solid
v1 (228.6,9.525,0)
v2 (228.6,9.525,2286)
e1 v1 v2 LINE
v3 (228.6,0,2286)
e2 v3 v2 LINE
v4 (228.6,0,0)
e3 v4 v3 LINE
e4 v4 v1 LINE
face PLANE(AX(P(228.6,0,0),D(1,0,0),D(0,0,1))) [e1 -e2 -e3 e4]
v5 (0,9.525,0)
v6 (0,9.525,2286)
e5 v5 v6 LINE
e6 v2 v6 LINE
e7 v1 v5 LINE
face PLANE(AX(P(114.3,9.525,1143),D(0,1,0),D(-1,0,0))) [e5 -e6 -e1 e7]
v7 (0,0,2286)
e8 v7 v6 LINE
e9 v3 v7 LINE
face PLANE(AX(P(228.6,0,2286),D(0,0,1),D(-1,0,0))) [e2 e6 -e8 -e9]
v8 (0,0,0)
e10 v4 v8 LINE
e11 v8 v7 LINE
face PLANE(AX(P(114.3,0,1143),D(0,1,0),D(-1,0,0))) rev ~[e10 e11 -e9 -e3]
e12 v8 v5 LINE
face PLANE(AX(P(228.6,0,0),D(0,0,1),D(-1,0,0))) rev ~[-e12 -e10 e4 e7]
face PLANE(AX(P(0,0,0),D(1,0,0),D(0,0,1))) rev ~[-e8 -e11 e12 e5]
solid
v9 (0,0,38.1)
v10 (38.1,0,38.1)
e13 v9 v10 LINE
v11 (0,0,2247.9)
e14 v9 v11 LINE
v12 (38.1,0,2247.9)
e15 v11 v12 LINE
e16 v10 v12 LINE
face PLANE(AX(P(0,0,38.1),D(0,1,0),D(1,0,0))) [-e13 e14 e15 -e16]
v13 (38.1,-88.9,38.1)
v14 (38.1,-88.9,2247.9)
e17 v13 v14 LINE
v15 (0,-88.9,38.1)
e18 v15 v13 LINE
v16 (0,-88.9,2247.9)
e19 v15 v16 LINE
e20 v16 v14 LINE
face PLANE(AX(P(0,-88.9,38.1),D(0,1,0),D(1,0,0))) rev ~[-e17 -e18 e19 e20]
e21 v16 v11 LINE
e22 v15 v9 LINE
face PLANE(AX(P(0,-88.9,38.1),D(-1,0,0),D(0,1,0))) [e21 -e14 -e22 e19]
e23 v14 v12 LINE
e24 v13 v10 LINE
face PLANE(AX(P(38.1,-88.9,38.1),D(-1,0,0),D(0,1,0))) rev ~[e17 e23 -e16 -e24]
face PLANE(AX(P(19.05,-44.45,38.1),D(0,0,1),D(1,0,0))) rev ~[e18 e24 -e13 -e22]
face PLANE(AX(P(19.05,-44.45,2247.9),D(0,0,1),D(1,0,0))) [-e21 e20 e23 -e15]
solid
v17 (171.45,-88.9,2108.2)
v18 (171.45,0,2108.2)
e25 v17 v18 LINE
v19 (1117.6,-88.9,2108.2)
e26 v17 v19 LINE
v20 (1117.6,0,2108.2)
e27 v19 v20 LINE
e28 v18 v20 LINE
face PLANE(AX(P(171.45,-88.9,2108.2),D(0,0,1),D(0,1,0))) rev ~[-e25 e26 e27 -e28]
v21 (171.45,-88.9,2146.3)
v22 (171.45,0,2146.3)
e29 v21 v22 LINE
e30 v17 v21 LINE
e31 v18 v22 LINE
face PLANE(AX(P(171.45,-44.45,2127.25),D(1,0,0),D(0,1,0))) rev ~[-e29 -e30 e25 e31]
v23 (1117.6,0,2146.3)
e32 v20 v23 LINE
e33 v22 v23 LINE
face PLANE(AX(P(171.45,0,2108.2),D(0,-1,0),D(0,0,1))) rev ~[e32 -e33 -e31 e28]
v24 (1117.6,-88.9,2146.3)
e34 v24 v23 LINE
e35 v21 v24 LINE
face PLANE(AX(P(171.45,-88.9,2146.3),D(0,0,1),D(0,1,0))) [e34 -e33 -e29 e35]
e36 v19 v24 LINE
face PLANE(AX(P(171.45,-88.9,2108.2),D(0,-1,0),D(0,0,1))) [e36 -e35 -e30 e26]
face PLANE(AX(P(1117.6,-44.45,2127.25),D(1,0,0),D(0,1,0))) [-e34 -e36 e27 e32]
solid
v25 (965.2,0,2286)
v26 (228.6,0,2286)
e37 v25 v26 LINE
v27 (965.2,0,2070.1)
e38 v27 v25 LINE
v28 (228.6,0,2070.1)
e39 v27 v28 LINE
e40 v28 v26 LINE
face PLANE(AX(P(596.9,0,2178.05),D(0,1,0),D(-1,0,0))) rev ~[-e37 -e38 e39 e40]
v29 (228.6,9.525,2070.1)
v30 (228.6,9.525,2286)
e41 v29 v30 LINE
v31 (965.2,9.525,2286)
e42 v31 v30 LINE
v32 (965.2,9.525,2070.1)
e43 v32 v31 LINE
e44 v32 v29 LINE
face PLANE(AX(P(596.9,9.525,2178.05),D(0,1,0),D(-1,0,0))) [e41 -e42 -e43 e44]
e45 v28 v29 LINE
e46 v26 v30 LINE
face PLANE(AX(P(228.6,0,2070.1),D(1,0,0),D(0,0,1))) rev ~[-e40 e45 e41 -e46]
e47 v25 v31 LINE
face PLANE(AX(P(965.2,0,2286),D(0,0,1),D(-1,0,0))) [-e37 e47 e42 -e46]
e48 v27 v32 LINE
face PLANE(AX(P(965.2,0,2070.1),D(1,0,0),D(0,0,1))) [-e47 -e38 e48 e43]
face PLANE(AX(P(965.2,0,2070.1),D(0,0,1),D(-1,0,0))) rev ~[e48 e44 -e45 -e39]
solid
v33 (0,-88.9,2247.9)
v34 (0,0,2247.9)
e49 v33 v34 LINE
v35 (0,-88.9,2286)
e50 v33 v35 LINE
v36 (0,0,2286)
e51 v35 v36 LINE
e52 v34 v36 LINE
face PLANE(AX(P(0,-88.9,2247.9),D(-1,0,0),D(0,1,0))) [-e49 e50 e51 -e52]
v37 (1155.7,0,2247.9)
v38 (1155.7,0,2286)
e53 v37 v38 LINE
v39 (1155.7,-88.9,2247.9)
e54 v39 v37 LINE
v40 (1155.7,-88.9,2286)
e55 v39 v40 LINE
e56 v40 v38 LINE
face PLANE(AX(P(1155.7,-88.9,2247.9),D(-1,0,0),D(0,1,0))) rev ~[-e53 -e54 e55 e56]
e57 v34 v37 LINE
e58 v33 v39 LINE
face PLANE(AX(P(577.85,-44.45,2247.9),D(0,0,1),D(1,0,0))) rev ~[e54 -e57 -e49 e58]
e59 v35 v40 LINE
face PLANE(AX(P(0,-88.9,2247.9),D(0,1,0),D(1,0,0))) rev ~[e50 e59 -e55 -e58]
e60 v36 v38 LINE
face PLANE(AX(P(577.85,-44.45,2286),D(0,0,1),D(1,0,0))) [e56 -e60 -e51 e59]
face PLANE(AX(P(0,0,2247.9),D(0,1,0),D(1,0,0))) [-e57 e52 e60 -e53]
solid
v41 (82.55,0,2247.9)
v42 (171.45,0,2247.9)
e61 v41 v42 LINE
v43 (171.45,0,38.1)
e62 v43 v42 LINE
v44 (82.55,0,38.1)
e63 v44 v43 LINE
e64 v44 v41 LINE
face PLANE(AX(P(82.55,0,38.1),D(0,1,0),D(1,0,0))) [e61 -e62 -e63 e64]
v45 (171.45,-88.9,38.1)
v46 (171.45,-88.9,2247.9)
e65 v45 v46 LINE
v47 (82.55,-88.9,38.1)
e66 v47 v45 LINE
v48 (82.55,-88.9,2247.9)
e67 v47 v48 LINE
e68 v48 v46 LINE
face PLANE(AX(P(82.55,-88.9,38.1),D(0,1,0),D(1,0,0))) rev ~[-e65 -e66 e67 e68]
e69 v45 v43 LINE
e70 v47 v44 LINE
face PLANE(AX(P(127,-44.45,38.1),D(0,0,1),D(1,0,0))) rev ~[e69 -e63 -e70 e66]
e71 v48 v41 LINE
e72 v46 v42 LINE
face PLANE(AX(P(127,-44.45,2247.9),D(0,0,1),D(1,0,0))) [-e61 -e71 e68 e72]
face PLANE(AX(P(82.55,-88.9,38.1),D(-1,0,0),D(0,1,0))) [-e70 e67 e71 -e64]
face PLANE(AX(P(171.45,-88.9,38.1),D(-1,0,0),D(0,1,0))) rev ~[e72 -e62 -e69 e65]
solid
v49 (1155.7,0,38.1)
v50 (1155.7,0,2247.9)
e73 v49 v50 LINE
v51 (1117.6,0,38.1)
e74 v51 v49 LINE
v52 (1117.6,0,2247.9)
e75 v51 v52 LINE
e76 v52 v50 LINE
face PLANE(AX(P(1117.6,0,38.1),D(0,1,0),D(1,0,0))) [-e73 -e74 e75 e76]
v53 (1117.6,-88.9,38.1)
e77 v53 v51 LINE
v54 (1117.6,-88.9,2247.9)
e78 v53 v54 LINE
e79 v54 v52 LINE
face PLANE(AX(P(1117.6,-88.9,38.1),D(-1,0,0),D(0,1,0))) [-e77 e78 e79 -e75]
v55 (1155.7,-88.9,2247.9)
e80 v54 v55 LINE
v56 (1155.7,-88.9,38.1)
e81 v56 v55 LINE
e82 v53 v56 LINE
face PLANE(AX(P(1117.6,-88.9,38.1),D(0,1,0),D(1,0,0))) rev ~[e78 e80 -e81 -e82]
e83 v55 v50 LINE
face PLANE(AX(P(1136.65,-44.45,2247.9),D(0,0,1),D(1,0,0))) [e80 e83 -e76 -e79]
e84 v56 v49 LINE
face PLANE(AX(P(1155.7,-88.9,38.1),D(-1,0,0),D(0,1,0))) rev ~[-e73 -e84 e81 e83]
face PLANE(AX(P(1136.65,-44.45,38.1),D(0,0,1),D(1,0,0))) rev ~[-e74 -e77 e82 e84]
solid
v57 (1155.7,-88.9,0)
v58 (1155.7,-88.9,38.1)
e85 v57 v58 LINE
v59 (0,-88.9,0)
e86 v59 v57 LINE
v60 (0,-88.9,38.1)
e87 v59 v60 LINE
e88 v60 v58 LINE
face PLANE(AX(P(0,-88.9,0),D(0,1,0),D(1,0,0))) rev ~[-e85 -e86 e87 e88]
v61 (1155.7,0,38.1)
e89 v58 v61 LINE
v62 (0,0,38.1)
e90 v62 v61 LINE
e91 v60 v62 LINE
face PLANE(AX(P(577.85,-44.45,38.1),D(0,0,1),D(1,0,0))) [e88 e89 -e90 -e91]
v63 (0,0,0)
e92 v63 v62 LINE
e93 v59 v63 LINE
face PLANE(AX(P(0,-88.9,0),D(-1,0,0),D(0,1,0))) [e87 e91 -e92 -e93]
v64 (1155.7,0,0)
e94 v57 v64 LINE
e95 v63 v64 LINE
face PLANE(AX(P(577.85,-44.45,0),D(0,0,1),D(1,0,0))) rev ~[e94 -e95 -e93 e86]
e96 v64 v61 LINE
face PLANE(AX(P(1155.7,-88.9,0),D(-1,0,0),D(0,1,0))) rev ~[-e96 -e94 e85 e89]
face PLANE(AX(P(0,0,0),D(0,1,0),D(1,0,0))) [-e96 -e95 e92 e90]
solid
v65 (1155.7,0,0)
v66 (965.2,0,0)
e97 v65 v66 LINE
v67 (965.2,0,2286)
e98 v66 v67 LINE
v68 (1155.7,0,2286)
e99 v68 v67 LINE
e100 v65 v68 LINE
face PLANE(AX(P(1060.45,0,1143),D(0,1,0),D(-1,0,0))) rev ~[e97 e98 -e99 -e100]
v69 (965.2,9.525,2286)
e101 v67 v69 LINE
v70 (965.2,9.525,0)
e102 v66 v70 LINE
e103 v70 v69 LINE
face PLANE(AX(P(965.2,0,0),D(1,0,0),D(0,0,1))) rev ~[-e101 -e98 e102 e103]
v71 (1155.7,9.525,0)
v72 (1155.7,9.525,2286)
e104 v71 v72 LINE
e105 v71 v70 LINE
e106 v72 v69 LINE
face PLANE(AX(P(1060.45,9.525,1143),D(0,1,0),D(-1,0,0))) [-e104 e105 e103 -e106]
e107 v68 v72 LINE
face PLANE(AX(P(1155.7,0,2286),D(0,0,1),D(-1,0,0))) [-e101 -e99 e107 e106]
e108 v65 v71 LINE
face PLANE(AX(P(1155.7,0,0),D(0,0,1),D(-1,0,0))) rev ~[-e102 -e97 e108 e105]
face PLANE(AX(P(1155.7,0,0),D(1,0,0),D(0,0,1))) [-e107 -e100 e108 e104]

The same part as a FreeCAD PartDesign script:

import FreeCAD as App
import Part
import Sketcher
Q = App.Units.Quantity


def add_polygon(sketch, points):
    """Adds a closed chain of lines whose ends are joined by coincident constraints."""
    first, n = sketch.GeometryCount, len(points)
    for a, b in zip(points, points[1:] + points[:1]):
        sketch.addGeometry(Part.LineSegment(App.Vector(*a, 0), App.Vector(*b, 0)), False)
    for i in range(n):
        sketch.addConstraint(Sketcher.Constraint("Coincident", first + i, 2, first + (i + 1) % n, 1))

doc = App.newDocument("Part")
body = doc.addObject("PartDesign::Body", "Body")

# Sketch on XY plane
sketch1 = doc.addObject("Sketcher::SketchObject", "Sketch")
body.addObject(sketch1)
sketch1.AttachmentSupport = (doc.XY_Plane, [""])
sketch1.MapMode = "FlatFace"
add_polygon(sketch1, [(0, 0), (0, -88.9), (1155.7, -88.9), (1155.7, 0)])  # lines 0-3
sketch1.addConstraint(Sketcher.Constraint("Vertical", 0))
sketch1.addConstraint(Sketcher.Constraint("Horizontal", 1))
sketch1.addConstraint(Sketcher.Constraint("Vertical", 2))
sketch1.addConstraint(Sketcher.Constraint("Horizontal", 3))
sketch1.addConstraint(Sketcher.Constraint("Coincident", 3, 2, -1, 1))
sketch1.addConstraint(Sketcher.Constraint("DistanceX", 1, 1, 1, 2, Q("45.5 in")))
sketch1.addConstraint(Sketcher.Constraint("DistanceY", 0, 2, 0, 1, Q("3.5 in")))
pad1 = doc.addObject("PartDesign::Pad", "Pad")
body.addObject(pad1)
pad1.Profile = sketch1
pad1.Length = Q("1.5 in")
body2 = doc.addObject("PartDesign::Body", "Body001")

# Sketch on XY plane
sketch2 = doc.addObject("Sketcher::SketchObject", "Sketch001")
body2.addObject(sketch2)
sketch2.AttachmentSupport = (doc.getObject("XY_Plane001"), [""])
sketch2.MapMode = "FlatFace"
sketch2.AttachmentOffset = App.Placement(App.Vector(0, 0, 1.5 * 25.4), App.Rotation())
add_polygon(sketch2, [(0, 0), (0, -88.9), (38.1, -88.9), (38.1, 0)])  # lines 0-3
sketch2.addConstraint(Sketcher.Constraint("Vertical", 0))
sketch2.addConstraint(Sketcher.Constraint("Horizontal", 1))
sketch2.addConstraint(Sketcher.Constraint("Vertical", 2))
sketch2.addConstraint(Sketcher.Constraint("Horizontal", 3))
sketch2.addConstraint(Sketcher.Constraint("Coincident", 3, 2, -1, 1))
sketch2.addConstraint(Sketcher.Constraint("DistanceX", 1, 1, 1, 2, Q("1.5 in")))
sketch2.addConstraint(Sketcher.Constraint("DistanceY", 0, 2, 0, 1, Q("3.5 in")))
pad2 = doc.addObject("PartDesign::Pad", "Pad001")
body2.addObject(pad2)
pad2.Profile = sketch2
pad2.Length = Q("87 in")
body3 = doc.addObject("PartDesign::Body", "Body002")

# Sketch on XY plane
sketch3 = doc.addObject("Sketcher::SketchObject", "Sketch002")
body3.addObject(sketch3)
sketch3.AttachmentSupport = (doc.getObject("XY_Plane002"), [""])
sketch3.MapMode = "FlatFace"
sketch3.AttachmentOffset = App.Placement(App.Vector(0, 0, 1.5 * 25.4), App.Rotation())
add_polygon(sketch3, [(1117.6, 0), (1117.6, -88.9), (1155.7, -88.9), (1155.7, 0)])  # lines 0-3
sketch3.addConstraint(Sketcher.Constraint("Vertical", 0))
sketch3.addConstraint(Sketcher.Constraint("Horizontal", 1))
sketch3.addConstraint(Sketcher.Constraint("Vertical", 2))
sketch3.addConstraint(Sketcher.Constraint("Horizontal", 3))
sketch3.addConstraint(Sketcher.Constraint("PointOnObject", 2, 2, -1))
sketch3.addConstraint(Sketcher.Constraint("DistanceX", 1, 1, 1, 2, Q("1.5 in")))
sketch3.addConstraint(Sketcher.Constraint("DistanceY", 0, 2, 0, 1, Q("3.5 in")))
sketch3.addConstraint(Sketcher.Constraint("DistanceX", -1, 1, 0, 2, Q("44 in")))
pad3 = doc.addObject("PartDesign::Pad", "Pad002")
body3.addObject(pad3)
pad3.Profile = sketch3
pad3.Length = Q("87 in")
body4 = doc.addObject("PartDesign::Body", "Body003")

# Sketch on XY plane
sketch4 = doc.addObject("Sketcher::SketchObject", "Sketch003")
body4.addObject(sketch4)
sketch4.AttachmentSupport = (doc.getObject("XY_Plane003"), [""])
sketch4.MapMode = "FlatFace"
sketch4.AttachmentOffset = App.Placement(App.Vector(0, 0, 1.5 * 25.4), App.Rotation())
add_polygon(sketch4, [(82.55, 0), (82.55, -88.9), (171.45, -88.9), (171.45, 0)])  # lines 0-3
sketch4.addConstraint(Sketcher.Constraint("Vertical", 0))
sketch4.addConstraint(Sketcher.Constraint("Horizontal", 1))
sketch4.addConstraint(Sketcher.Constraint("Vertical", 2))
sketch4.addConstraint(Sketcher.Constraint("Horizontal", 3))
sketch4.addConstraint(Sketcher.Constraint("PointOnObject", 2, 2, -1))
sketch4.addConstraint(Sketcher.Constraint("Equal", 3, 0))
sketch4.addConstraint(Sketcher.Constraint("DistanceX", 1, 1, 1, 2, Q("3.5 in")))
sketch4.addConstraint(Sketcher.Constraint("DistanceX", -1, 1, 0, 2, Q("3.25 in")))
pad4 = doc.addObject("PartDesign::Pad", "Pad003")
body4.addObject(pad4)
pad4.Profile = sketch4
pad4.Length = Q("87 in")
body5 = doc.addObject("PartDesign::Body", "Body004")

# Sketch on XY plane
sketch5 = doc.addObject("Sketcher::SketchObject", "Sketch004")
body5.addObject(sketch5)
sketch5.AttachmentSupport = (doc.getObject("XY_Plane004"), [""])
sketch5.MapMode = "FlatFace"
sketch5.AttachmentOffset = App.Placement(App.Vector(0, 0, 88.5 * 25.4), App.Rotation())
add_polygon(sketch5, [(0, 0), (0, -88.9), (1155.7, -88.9), (1155.7, 0)])  # lines 0-3
sketch5.addConstraint(Sketcher.Constraint("Vertical", 0))
sketch5.addConstraint(Sketcher.Constraint("Horizontal", 1))
sketch5.addConstraint(Sketcher.Constraint("Vertical", 2))
sketch5.addConstraint(Sketcher.Constraint("Horizontal", 3))
sketch5.addConstraint(Sketcher.Constraint("Coincident", 3, 2, -1, 1))
sketch5.addConstraint(Sketcher.Constraint("DistanceX", 1, 1, 1, 2, Q("45.5 in")))
sketch5.addConstraint(Sketcher.Constraint("DistanceY", 0, 2, 0, 1, Q("3.5 in")))
pad5 = doc.addObject("PartDesign::Pad", "Pad004")
body5.addObject(pad5)
pad5.Profile = sketch5
pad5.Length = Q("1.5 in")
body6 = doc.addObject("PartDesign::Body", "Body005")

# Sketch on XZ plane
sketch6 = doc.addObject("Sketcher::SketchObject", "Sketch005")
body6.addObject(sketch6)
sketch6.AttachmentSupport = (doc.getObject("XZ_Plane005"), [""])
sketch6.MapMode = "FlatFace"
add_polygon(sketch6, [(1155.7, 2286), (1155.7, 0), (965.2, 0), (965.2, 2286)])  # lines 0-3
sketch6.addConstraint(Sketcher.Constraint("Vertical", 0))
sketch6.addConstraint(Sketcher.Constraint("Horizontal", 1))
sketch6.addConstraint(Sketcher.Constraint("Vertical", 2))
sketch6.addConstraint(Sketcher.Constraint("Horizontal", 3))
sketch6.addConstraint(Sketcher.Constraint("PointOnObject", 0, 2, -1))
sketch6.addConstraint(Sketcher.Constraint("DistanceY", 0, 2, 0, 1, Q("90 in")))
sketch6.addConstraint(Sketcher.Constraint("DistanceX", 1, 2, 1, 1, Q("7.5 in")))
sketch6.addConstraint(Sketcher.Constraint("DistanceX", -1, 1, 1, 2, Q("38 in")))
pad6 = doc.addObject("PartDesign::Pad", "Pad005")
body6.addObject(pad6)
pad6.Profile = sketch6
pad6.Length = Q("0.375 in")
pad6.Reversed = True
body7 = doc.addObject("PartDesign::Body", "Body006")

# Sketch on XZ plane
sketch7 = doc.addObject("Sketcher::SketchObject", "Sketch006")
body7.addObject(sketch7)
sketch7.AttachmentSupport = (doc.getObject("XZ_Plane006"), [""])
sketch7.MapMode = "FlatFace"
add_polygon(sketch7, [(228.6, 2286), (228.6, 0), (0, 0), (0, 2286)])  # lines 0-3
sketch7.addConstraint(Sketcher.Constraint("Vertical", 0))
sketch7.addConstraint(Sketcher.Constraint("Horizontal", 1))
sketch7.addConstraint(Sketcher.Constraint("Vertical", 2))
sketch7.addConstraint(Sketcher.Constraint("Horizontal", 3))
sketch7.addConstraint(Sketcher.Constraint("Coincident", 1, 2, -1, 1))
sketch7.addConstraint(Sketcher.Constraint("DistanceX", 1, 2, 1, 1, Q("9 in")))
sketch7.addConstraint(Sketcher.Constraint("DistanceY", 0, 2, 0, 1, Q("90 in")))
pad7 = doc.addObject("PartDesign::Pad", "Pad006")
body7.addObject(pad7)
pad7.Profile = sketch7
pad7.Length = Q("0.375 in")
pad7.Reversed = True
body8 = doc.addObject("PartDesign::Body", "Body007")

# Sketch on XZ plane
sketch8 = doc.addObject("Sketcher::SketchObject", "Sketch007")
body8.addObject(sketch8)
sketch8.AttachmentSupport = (doc.getObject("XZ_Plane007"), [""])
sketch8.MapMode = "FlatFace"
add_polygon(sketch8, [(965.2, 2286), (965.2, 2070.1), (228.6, 2070.1), (228.6, 2286)])  # lines 0-3
sketch8.addConstraint(Sketcher.Constraint("Vertical", 0))
sketch8.addConstraint(Sketcher.Constraint("Horizontal", 1))
sketch8.addConstraint(Sketcher.Constraint("Vertical", 2))
sketch8.addConstraint(Sketcher.Constraint("Horizontal", 3))
sketch8.addConstraint(Sketcher.Constraint("DistanceX", 1, 2, 1, 1, Q("29 in")))
sketch8.addConstraint(Sketcher.Constraint("DistanceY", 0, 2, 0, 1, Q("8.5 in")))
sketch8.addConstraint(Sketcher.Constraint("DistanceX", -1, 1, 0, 2, Q("38 in")))
sketch8.addConstraint(Sketcher.Constraint("DistanceY", -1, 1, 2, 2, Q("90 in")))
pad8 = doc.addObject("PartDesign::Pad", "Pad007")
body8.addObject(pad8)
pad8.Profile = sketch8
pad8.Length = Q("0.375 in")
pad8.Reversed = True
body9 = doc.addObject("PartDesign::Body", "Body008")

# Sketch on YZ plane
sketch9 = doc.addObject("Sketcher::SketchObject", "Sketch008")
body9.addObject(sketch9)
sketch9.AttachmentSupport = (doc.getObject("YZ_Plane008"), [""])
sketch9.MapMode = "FlatFace"
sketch9.AttachmentOffset = App.Placement(App.Vector(0, 0, 6.75 * 25.4), App.Rotation())
add_polygon(sketch9, [(-88.9, 2146.3), (-88.9, 2108.2), (0, 2108.2), (0, 2146.3)])  # lines 0-3
sketch9.addConstraint(Sketcher.Constraint("Vertical", 0))
sketch9.addConstraint(Sketcher.Constraint("Horizontal", 1))
sketch9.addConstraint(Sketcher.Constraint("Vertical", 2))
sketch9.addConstraint(Sketcher.Constraint("Horizontal", 3))
sketch9.addConstraint(Sketcher.Constraint("PointOnObject", 1, 2, -2))
sketch9.addConstraint(Sketcher.Constraint("DistanceX", 1, 1, 1, 2, Q("3.5 in")))
sketch9.addConstraint(Sketcher.Constraint("DistanceY", 0, 2, 0, 1, Q("1.5 in")))
sketch9.addConstraint(Sketcher.Constraint("DistanceY", -1, 1, 0, 2, Q("83 in")))
pad9 = doc.addObject("PartDesign::Pad", "Pad008")
body9.addObject(pad9)
pad9.Profile = sketch9
pad9.Length = Q("37.25 in")

doc.recompute()
